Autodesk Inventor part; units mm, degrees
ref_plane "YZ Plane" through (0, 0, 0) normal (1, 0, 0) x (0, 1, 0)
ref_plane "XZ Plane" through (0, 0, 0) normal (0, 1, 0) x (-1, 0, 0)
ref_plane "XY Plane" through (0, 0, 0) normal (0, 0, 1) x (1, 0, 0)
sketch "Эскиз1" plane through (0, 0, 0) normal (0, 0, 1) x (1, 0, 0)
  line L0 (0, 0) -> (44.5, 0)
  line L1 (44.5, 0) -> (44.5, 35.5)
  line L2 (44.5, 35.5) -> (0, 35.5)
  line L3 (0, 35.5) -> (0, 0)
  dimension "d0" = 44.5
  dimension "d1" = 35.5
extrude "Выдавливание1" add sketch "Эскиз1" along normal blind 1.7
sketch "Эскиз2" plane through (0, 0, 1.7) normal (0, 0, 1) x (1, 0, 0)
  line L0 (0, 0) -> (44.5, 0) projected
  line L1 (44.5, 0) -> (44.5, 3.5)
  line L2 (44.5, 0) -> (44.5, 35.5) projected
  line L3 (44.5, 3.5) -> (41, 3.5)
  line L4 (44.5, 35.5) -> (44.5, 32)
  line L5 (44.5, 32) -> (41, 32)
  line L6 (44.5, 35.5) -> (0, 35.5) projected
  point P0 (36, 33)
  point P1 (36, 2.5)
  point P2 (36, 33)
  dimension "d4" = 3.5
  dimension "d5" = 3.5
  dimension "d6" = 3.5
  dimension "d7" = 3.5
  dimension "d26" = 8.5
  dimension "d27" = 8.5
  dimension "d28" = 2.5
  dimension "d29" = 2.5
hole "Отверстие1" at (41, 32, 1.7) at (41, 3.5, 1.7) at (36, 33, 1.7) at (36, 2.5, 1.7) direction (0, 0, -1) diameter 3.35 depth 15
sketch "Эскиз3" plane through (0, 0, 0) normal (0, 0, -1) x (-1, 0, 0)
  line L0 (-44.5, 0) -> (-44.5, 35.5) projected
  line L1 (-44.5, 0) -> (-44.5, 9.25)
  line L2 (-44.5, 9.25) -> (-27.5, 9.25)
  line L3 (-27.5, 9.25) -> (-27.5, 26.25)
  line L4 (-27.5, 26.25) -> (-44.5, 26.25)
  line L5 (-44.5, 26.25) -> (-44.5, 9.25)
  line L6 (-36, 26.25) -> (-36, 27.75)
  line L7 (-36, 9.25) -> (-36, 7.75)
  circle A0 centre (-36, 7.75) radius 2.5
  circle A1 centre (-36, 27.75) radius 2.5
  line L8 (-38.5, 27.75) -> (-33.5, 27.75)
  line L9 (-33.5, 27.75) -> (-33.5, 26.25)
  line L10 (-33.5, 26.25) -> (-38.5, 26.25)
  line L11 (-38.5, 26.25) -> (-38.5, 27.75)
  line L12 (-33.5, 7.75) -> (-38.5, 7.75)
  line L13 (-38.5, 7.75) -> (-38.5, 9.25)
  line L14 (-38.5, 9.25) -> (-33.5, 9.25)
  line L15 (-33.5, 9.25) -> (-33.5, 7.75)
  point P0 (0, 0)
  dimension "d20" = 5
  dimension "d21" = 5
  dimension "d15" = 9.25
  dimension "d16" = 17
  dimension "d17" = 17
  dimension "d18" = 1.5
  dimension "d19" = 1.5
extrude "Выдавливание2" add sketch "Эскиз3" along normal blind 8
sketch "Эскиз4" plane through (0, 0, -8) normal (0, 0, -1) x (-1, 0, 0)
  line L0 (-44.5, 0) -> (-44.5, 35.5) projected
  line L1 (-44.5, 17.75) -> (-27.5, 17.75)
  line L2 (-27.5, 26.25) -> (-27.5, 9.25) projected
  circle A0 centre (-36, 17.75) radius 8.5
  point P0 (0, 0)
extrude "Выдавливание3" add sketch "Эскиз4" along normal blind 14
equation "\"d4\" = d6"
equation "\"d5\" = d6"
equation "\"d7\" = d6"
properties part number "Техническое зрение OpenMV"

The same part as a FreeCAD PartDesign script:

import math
import FreeCAD as App
import Part
import Sketcher

doc = App.newDocument("Part")
body = doc.addObject("PartDesign::Body", "Body")

# Sketch on XY plane
sketch1 = doc.addObject("Sketcher::SketchObject", "Sketch")
body.addObject(sketch1)
sketch1.AttachmentSupport = (doc.XY_Plane, [""])
sketch1.MapMode = "FlatFace"
sketch1.addGeometry([
    Part.LineSegment(App.Vector(0, 36, 0), App.Vector(0, 0, 0)),
    Part.LineSegment(App.Vector(0, 0, 0), App.Vector(44, 0, 0)),
    Part.LineSegment(App.Vector(44, 0, 0), App.Vector(44, 36, 0)),
    Part.LineSegment(App.Vector(44, 36, 0), App.Vector(0, 36, 0)),
], False)
sketch1.addConstraint([
    Sketcher.Constraint("Coincident", 0, 2, 1, 1),
    Sketcher.Constraint("Coincident", 1, 2, 2, 1),
    Sketcher.Constraint("Coincident", 2, 2, 3, 1),
    Sketcher.Constraint("Coincident", 3, 2, 0, 1),
    Sketcher.Constraint("Vertical", 0),
    Sketcher.Constraint("Horizontal", 1),
    Sketcher.Constraint("Vertical", 2),
    Sketcher.Constraint("Horizontal", 3),
    Sketcher.Constraint("Coincident", 0, 2, -1, 1),
    Sketcher.Constraint("DistanceX", 1, 1, 1, 2, 44.5),
    Sketcher.Constraint("DistanceY", 0, 2, 0, 1, 35.5),
])
pad1 = doc.addObject("PartDesign::Pad", "Pad")
body.addObject(pad1)
pad1.Profile = sketch1
pad1.Length = 1.7

# Sketch on XY plane
sketch2 = doc.addObject("Sketcher::SketchObject", "Sketch001")
body.addObject(sketch2)
sketch2.AttachmentSupport = (doc.XY_Plane, [""])
sketch2.MapMode = "FlatFace"
sketch2.AttachmentOffset = App.Placement(App.Vector(0, 0, 1.7), App.Rotation())
sketch2.addGeometry([
    Part.Circle(App.Vector(41, 32, 0), App.Vector(0, 0, 1), 1.7),
    Part.Circle(App.Vector(41, 3.5, 0), App.Vector(0, 0, 1), 1.7),
    Part.Circle(App.Vector(36, 33, 0), App.Vector(0, 0, 1), 1.7),
    Part.Circle(App.Vector(36, 2.5, 0), App.Vector(0, 0, 1), 1.7),
], False)
sketch2.addConstraint([
    Sketcher.Constraint("Equal", 0, 1),
    Sketcher.Constraint("Equal", 1, 2),
    Sketcher.Constraint("Equal", 2, 3),
    Sketcher.Constraint("Vertical", 0, 3, 1, 3),
    Sketcher.Constraint("Vertical", 2, 3, 3, 3),
    Sketcher.Constraint("Diameter", 0, 3.35),
    Sketcher.Constraint("DistanceX", -1, 1, 0, 3, 41.0),
    Sketcher.Constraint("DistanceY", -1, 1, 0, 3, 32.0),
    Sketcher.Constraint("DistanceX", -1, 1, 2, 3, 36.0),
    Sketcher.Constraint("DistanceY", -1, 1, 2, 3, 33.0),
    Sketcher.Constraint("DistanceY", 3, 3, 1, 3, 1.0),
    Sketcher.Constraint("DistanceY", -1, 1, 1, 3, 3.5),
])
doc.recompute()
hole = doc.addObject("PartDesign::Hole", "Hole")
body.addObject(hole)
hole.Profile = sketch2
hole.ThreadType = "None"
hole.Diameter = 3.35
hole.DepthType = "Dimension"
hole.Depth = 15
hole.DrillPoint = "Flat"

# Sketch on XY plane
sketch3 = doc.addObject("Sketcher::SketchObject", "Sketch002")
body.addObject(sketch3)
sketch3.AttachmentSupport = (doc.XY_Plane, [""])
sketch3.MapMode = "FlatFace"
sketch3.addGeometry([
    Part.LineSegment(App.Vector(44.5, 26.2, 0), App.Vector(44.5, 9.2, 0)),  # 0
    Part.LineSegment(App.Vector(44.5, 9.2, 0), App.Vector(38.5, 9.2, 0)),  # 1
    Part.LineSegment(App.Vector(38.5, 9.2, 0), App.Vector(38.5, 7.8, 0)),  # 2
    Part.ArcOfCircle(Part.Circle(App.Vector(36, 7.8, 0), App.Vector(0, 0, 1), 2.5), math.radians(180), math.radians(360)),  # 3
    Part.LineSegment(App.Vector(33.5, 7.8, 0), App.Vector(33.5, 9.2, 0)),  # 4
    Part.LineSegment(App.Vector(33.5, 9.2, 0), App.Vector(27.5, 9.2, 0)),  # 5
    Part.LineSegment(App.Vector(27.5, 9.2, 0), App.Vector(27.5, 26.2, 0)),  # 6
    Part.LineSegment(App.Vector(27.5, 26.2, 0), App.Vector(33.5, 26.2, 0)),  # 7
    Part.LineSegment(App.Vector(33.5, 26.2, 0), App.Vector(33.5, 27.8, 0)),  # 8
    Part.ArcOfCircle(Part.Circle(App.Vector(36, 27.8, 0), App.Vector(0, 0, 1), 2.5), math.radians(0), math.radians(180)),  # 9
    Part.LineSegment(App.Vector(38.5, 27.8, 0), App.Vector(38.5, 26.2, 0)),  # 10
    Part.LineSegment(App.Vector(38.5, 26.2, 0), App.Vector(44.5, 26.2, 0)),  # 11
], False)
sketch3.addConstraint([
    Sketcher.Constraint("Coincident", 0, 2, 1, 1),
    Sketcher.Constraint("Coincident", 1, 2, 2, 1),
    Sketcher.Constraint("Tangent", 2, 2, 3, 2),
    Sketcher.Constraint("Tangent", 3, 1, 4, 1),
    Sketcher.Constraint("Coincident", 4, 2, 5, 1),
    Sketcher.Constraint("Coincident", 5, 2, 6, 1),
    Sketcher.Constraint("Coincident", 6, 2, 7, 1),
    Sketcher.Constraint("Coincident", 7, 2, 8, 1),
    Sketcher.Constraint("Tangent", 8, 2, 9, 2),
    Sketcher.Constraint("Tangent", 9, 1, 10, 1),
    Sketcher.Constraint("Coincident", 10, 2, 11, 1),
    Sketcher.Constraint("Coincident", 11, 2, 0, 1),
    Sketcher.Constraint("Vertical", 0),
    Sketcher.Constraint("Horizontal", 1),
    Sketcher.Constraint("Vertical", 2),
    Sketcher.Constraint("Vertical", 4),
    Sketcher.Constraint("Horizontal", 5),
    Sketcher.Constraint("Vertical", 6),
    Sketcher.Constraint("Horizontal", 7),
    Sketcher.Constraint("Vertical", 8),
    Sketcher.Constraint("Vertical", 10),
    Sketcher.Constraint("Horizontal", 11),
    Sketcher.Constraint("Equal", 3, 9),
    Sketcher.Constraint("Horizontal", 1, 2, 4, 2),
    Sketcher.Constraint("Horizontal", 7, 2, 10, 2),
    Sketcher.Constraint("Vertical", 3, 3, 9, 3),
    Sketcher.Constraint("Equal", 1, 5),
    Sketcher.Constraint("Equal", 4, 8),
    Sketcher.Constraint("Radius", 3, 2.5),
    Sketcher.Constraint("DistanceY", 0, 2, 0, 1, 17.0),
    Sketcher.Constraint("DistanceY", 2, 2, 2, 1, 1.5),
    Sketcher.Constraint("DistanceX", 1, 2, 1, 1, 6.0),
    Sketcher.Constraint("DistanceY", -1, 1, 0, 2, 9.25),
    Sketcher.Constraint("DistanceX", -1, 1, 3, 3, 36.0),
])
pad2 = doc.addObject("PartDesign::Pad", "Pad001")
body.addObject(pad2)
pad2.Profile = sketch3
pad2.Length = 8
pad2.Reversed = True

# Sketch on XY plane
sketch4 = doc.addObject("Sketcher::SketchObject", "Sketch003")
body.addObject(sketch4)
sketch4.AttachmentSupport = (doc.XY_Plane, [""])
sketch4.MapMode = "FlatFace"
sketch4.AttachmentOffset = App.Placement(App.Vector(0, 0, -8), App.Rotation())
sketch4.addGeometry(Part.Circle(App.Vector(36, 18, 0), App.Vector(0, 0, 1), 8), False)
sketch4.addConstraint([
    Sketcher.Constraint("Diameter", 0, 17.0),
    Sketcher.Constraint("DistanceX", -1, 1, 0, 3, 36.0),
    Sketcher.Constraint("DistanceY", -1, 1, 0, 3, 17.75),
])
pad3 = doc.addObject("PartDesign::Pad", "Pad002")
body.addObject(pad3)
pad3.Profile = sketch4
pad3.Length = 14
pad3.Reversed = True

doc.recompute()
